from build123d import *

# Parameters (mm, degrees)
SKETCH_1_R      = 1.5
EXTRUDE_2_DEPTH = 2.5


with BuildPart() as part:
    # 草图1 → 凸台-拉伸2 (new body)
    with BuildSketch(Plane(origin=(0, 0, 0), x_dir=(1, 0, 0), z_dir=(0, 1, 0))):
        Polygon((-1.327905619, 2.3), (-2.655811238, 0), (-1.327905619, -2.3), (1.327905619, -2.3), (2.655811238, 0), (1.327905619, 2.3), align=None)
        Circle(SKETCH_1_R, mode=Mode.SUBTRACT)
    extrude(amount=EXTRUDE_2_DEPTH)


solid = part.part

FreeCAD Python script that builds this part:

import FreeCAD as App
import Part
import Sketcher
Q = App.Units.Quantity


def add_polygon(sketch, points):
    """Adds a closed chain of lines whose ends are joined by coincident constraints."""
    first, n = sketch.GeometryCount, len(points)
    for a, b in zip(points, points[1:] + points[:1]):
        sketch.addGeometry(Part.LineSegment(App.Vector(*a, 0), App.Vector(*b, 0)), False)
    for i in range(n):
        sketch.addConstraint(Sketcher.Constraint("Coincident", first + i, 2, first + (i + 1) % n, 1))

doc = App.newDocument("Part")
body = doc.addObject("PartDesign::Body", "Body")

sketch1 = doc.addObject("Sketcher::SketchObject", "Sketch")
body.addObject(sketch1)
sketch1.AttachmentSupport = (doc.XZ_Plane, [""])
sketch1.MapMode = "FlatFace"
add_polygon(sketch1, [(-1.327906, -2.3), (-2.655811, 0), (-1.327906, 2.3), (1.327906, 2.3), (2.655811, 0), (1.327906, -2.3)])
sketch1.addGeometry(Part.Circle(App.Vector(0, 0, 0), App.Vector(0, 0, 1), 1.5), False)
sketch1.addConstraint(Sketcher.Constraint("Horizontal", 2))
sketch1.addConstraint(Sketcher.Constraint("Horizontal", 5))
sketch1.addConstraint(Sketcher.Constraint("Coincident", 6, 3, -1, 1))
sketch1.addConstraint(Sketcher.Constraint("Symmetric", 0, 2, 3, 2, -1, 1))
sketch1.addConstraint(Sketcher.Constraint("Symmetric", 1, 2, 4, 2, -1, 1))
sketch1.addConstraint(Sketcher.Constraint("PointOnObject", 0, 2, -1))
sketch1.addConstraint(Sketcher.Constraint("Parallel", 0, 3))
sketch1.addConstraint(Sketcher.Constraint("Vertical", 2, 2, 4, 2))
sketch1.addConstraint(Sketcher.Constraint("Diameter", 6, Q("3 mm")))
sketch1.addConstraint(Sketcher.Constraint("Angle", 0, Q("120 deg")))
sketch1.addConstraint(Sketcher.Constraint("DistanceY", -1, 1, 1, 2, Q("2.3 mm")))
sketch1.addConstraint(Sketcher.Constraint("DistanceX", 2, 1, 2, 2, Q("2.655811 mm")))
pad1 = doc.addObject("PartDesign::Pad", "Pad")
body.addObject(pad1)
pad1.Profile = sketch1
pad1.Length = 2.5
pad1.Reversed = True

doc.recompute()
